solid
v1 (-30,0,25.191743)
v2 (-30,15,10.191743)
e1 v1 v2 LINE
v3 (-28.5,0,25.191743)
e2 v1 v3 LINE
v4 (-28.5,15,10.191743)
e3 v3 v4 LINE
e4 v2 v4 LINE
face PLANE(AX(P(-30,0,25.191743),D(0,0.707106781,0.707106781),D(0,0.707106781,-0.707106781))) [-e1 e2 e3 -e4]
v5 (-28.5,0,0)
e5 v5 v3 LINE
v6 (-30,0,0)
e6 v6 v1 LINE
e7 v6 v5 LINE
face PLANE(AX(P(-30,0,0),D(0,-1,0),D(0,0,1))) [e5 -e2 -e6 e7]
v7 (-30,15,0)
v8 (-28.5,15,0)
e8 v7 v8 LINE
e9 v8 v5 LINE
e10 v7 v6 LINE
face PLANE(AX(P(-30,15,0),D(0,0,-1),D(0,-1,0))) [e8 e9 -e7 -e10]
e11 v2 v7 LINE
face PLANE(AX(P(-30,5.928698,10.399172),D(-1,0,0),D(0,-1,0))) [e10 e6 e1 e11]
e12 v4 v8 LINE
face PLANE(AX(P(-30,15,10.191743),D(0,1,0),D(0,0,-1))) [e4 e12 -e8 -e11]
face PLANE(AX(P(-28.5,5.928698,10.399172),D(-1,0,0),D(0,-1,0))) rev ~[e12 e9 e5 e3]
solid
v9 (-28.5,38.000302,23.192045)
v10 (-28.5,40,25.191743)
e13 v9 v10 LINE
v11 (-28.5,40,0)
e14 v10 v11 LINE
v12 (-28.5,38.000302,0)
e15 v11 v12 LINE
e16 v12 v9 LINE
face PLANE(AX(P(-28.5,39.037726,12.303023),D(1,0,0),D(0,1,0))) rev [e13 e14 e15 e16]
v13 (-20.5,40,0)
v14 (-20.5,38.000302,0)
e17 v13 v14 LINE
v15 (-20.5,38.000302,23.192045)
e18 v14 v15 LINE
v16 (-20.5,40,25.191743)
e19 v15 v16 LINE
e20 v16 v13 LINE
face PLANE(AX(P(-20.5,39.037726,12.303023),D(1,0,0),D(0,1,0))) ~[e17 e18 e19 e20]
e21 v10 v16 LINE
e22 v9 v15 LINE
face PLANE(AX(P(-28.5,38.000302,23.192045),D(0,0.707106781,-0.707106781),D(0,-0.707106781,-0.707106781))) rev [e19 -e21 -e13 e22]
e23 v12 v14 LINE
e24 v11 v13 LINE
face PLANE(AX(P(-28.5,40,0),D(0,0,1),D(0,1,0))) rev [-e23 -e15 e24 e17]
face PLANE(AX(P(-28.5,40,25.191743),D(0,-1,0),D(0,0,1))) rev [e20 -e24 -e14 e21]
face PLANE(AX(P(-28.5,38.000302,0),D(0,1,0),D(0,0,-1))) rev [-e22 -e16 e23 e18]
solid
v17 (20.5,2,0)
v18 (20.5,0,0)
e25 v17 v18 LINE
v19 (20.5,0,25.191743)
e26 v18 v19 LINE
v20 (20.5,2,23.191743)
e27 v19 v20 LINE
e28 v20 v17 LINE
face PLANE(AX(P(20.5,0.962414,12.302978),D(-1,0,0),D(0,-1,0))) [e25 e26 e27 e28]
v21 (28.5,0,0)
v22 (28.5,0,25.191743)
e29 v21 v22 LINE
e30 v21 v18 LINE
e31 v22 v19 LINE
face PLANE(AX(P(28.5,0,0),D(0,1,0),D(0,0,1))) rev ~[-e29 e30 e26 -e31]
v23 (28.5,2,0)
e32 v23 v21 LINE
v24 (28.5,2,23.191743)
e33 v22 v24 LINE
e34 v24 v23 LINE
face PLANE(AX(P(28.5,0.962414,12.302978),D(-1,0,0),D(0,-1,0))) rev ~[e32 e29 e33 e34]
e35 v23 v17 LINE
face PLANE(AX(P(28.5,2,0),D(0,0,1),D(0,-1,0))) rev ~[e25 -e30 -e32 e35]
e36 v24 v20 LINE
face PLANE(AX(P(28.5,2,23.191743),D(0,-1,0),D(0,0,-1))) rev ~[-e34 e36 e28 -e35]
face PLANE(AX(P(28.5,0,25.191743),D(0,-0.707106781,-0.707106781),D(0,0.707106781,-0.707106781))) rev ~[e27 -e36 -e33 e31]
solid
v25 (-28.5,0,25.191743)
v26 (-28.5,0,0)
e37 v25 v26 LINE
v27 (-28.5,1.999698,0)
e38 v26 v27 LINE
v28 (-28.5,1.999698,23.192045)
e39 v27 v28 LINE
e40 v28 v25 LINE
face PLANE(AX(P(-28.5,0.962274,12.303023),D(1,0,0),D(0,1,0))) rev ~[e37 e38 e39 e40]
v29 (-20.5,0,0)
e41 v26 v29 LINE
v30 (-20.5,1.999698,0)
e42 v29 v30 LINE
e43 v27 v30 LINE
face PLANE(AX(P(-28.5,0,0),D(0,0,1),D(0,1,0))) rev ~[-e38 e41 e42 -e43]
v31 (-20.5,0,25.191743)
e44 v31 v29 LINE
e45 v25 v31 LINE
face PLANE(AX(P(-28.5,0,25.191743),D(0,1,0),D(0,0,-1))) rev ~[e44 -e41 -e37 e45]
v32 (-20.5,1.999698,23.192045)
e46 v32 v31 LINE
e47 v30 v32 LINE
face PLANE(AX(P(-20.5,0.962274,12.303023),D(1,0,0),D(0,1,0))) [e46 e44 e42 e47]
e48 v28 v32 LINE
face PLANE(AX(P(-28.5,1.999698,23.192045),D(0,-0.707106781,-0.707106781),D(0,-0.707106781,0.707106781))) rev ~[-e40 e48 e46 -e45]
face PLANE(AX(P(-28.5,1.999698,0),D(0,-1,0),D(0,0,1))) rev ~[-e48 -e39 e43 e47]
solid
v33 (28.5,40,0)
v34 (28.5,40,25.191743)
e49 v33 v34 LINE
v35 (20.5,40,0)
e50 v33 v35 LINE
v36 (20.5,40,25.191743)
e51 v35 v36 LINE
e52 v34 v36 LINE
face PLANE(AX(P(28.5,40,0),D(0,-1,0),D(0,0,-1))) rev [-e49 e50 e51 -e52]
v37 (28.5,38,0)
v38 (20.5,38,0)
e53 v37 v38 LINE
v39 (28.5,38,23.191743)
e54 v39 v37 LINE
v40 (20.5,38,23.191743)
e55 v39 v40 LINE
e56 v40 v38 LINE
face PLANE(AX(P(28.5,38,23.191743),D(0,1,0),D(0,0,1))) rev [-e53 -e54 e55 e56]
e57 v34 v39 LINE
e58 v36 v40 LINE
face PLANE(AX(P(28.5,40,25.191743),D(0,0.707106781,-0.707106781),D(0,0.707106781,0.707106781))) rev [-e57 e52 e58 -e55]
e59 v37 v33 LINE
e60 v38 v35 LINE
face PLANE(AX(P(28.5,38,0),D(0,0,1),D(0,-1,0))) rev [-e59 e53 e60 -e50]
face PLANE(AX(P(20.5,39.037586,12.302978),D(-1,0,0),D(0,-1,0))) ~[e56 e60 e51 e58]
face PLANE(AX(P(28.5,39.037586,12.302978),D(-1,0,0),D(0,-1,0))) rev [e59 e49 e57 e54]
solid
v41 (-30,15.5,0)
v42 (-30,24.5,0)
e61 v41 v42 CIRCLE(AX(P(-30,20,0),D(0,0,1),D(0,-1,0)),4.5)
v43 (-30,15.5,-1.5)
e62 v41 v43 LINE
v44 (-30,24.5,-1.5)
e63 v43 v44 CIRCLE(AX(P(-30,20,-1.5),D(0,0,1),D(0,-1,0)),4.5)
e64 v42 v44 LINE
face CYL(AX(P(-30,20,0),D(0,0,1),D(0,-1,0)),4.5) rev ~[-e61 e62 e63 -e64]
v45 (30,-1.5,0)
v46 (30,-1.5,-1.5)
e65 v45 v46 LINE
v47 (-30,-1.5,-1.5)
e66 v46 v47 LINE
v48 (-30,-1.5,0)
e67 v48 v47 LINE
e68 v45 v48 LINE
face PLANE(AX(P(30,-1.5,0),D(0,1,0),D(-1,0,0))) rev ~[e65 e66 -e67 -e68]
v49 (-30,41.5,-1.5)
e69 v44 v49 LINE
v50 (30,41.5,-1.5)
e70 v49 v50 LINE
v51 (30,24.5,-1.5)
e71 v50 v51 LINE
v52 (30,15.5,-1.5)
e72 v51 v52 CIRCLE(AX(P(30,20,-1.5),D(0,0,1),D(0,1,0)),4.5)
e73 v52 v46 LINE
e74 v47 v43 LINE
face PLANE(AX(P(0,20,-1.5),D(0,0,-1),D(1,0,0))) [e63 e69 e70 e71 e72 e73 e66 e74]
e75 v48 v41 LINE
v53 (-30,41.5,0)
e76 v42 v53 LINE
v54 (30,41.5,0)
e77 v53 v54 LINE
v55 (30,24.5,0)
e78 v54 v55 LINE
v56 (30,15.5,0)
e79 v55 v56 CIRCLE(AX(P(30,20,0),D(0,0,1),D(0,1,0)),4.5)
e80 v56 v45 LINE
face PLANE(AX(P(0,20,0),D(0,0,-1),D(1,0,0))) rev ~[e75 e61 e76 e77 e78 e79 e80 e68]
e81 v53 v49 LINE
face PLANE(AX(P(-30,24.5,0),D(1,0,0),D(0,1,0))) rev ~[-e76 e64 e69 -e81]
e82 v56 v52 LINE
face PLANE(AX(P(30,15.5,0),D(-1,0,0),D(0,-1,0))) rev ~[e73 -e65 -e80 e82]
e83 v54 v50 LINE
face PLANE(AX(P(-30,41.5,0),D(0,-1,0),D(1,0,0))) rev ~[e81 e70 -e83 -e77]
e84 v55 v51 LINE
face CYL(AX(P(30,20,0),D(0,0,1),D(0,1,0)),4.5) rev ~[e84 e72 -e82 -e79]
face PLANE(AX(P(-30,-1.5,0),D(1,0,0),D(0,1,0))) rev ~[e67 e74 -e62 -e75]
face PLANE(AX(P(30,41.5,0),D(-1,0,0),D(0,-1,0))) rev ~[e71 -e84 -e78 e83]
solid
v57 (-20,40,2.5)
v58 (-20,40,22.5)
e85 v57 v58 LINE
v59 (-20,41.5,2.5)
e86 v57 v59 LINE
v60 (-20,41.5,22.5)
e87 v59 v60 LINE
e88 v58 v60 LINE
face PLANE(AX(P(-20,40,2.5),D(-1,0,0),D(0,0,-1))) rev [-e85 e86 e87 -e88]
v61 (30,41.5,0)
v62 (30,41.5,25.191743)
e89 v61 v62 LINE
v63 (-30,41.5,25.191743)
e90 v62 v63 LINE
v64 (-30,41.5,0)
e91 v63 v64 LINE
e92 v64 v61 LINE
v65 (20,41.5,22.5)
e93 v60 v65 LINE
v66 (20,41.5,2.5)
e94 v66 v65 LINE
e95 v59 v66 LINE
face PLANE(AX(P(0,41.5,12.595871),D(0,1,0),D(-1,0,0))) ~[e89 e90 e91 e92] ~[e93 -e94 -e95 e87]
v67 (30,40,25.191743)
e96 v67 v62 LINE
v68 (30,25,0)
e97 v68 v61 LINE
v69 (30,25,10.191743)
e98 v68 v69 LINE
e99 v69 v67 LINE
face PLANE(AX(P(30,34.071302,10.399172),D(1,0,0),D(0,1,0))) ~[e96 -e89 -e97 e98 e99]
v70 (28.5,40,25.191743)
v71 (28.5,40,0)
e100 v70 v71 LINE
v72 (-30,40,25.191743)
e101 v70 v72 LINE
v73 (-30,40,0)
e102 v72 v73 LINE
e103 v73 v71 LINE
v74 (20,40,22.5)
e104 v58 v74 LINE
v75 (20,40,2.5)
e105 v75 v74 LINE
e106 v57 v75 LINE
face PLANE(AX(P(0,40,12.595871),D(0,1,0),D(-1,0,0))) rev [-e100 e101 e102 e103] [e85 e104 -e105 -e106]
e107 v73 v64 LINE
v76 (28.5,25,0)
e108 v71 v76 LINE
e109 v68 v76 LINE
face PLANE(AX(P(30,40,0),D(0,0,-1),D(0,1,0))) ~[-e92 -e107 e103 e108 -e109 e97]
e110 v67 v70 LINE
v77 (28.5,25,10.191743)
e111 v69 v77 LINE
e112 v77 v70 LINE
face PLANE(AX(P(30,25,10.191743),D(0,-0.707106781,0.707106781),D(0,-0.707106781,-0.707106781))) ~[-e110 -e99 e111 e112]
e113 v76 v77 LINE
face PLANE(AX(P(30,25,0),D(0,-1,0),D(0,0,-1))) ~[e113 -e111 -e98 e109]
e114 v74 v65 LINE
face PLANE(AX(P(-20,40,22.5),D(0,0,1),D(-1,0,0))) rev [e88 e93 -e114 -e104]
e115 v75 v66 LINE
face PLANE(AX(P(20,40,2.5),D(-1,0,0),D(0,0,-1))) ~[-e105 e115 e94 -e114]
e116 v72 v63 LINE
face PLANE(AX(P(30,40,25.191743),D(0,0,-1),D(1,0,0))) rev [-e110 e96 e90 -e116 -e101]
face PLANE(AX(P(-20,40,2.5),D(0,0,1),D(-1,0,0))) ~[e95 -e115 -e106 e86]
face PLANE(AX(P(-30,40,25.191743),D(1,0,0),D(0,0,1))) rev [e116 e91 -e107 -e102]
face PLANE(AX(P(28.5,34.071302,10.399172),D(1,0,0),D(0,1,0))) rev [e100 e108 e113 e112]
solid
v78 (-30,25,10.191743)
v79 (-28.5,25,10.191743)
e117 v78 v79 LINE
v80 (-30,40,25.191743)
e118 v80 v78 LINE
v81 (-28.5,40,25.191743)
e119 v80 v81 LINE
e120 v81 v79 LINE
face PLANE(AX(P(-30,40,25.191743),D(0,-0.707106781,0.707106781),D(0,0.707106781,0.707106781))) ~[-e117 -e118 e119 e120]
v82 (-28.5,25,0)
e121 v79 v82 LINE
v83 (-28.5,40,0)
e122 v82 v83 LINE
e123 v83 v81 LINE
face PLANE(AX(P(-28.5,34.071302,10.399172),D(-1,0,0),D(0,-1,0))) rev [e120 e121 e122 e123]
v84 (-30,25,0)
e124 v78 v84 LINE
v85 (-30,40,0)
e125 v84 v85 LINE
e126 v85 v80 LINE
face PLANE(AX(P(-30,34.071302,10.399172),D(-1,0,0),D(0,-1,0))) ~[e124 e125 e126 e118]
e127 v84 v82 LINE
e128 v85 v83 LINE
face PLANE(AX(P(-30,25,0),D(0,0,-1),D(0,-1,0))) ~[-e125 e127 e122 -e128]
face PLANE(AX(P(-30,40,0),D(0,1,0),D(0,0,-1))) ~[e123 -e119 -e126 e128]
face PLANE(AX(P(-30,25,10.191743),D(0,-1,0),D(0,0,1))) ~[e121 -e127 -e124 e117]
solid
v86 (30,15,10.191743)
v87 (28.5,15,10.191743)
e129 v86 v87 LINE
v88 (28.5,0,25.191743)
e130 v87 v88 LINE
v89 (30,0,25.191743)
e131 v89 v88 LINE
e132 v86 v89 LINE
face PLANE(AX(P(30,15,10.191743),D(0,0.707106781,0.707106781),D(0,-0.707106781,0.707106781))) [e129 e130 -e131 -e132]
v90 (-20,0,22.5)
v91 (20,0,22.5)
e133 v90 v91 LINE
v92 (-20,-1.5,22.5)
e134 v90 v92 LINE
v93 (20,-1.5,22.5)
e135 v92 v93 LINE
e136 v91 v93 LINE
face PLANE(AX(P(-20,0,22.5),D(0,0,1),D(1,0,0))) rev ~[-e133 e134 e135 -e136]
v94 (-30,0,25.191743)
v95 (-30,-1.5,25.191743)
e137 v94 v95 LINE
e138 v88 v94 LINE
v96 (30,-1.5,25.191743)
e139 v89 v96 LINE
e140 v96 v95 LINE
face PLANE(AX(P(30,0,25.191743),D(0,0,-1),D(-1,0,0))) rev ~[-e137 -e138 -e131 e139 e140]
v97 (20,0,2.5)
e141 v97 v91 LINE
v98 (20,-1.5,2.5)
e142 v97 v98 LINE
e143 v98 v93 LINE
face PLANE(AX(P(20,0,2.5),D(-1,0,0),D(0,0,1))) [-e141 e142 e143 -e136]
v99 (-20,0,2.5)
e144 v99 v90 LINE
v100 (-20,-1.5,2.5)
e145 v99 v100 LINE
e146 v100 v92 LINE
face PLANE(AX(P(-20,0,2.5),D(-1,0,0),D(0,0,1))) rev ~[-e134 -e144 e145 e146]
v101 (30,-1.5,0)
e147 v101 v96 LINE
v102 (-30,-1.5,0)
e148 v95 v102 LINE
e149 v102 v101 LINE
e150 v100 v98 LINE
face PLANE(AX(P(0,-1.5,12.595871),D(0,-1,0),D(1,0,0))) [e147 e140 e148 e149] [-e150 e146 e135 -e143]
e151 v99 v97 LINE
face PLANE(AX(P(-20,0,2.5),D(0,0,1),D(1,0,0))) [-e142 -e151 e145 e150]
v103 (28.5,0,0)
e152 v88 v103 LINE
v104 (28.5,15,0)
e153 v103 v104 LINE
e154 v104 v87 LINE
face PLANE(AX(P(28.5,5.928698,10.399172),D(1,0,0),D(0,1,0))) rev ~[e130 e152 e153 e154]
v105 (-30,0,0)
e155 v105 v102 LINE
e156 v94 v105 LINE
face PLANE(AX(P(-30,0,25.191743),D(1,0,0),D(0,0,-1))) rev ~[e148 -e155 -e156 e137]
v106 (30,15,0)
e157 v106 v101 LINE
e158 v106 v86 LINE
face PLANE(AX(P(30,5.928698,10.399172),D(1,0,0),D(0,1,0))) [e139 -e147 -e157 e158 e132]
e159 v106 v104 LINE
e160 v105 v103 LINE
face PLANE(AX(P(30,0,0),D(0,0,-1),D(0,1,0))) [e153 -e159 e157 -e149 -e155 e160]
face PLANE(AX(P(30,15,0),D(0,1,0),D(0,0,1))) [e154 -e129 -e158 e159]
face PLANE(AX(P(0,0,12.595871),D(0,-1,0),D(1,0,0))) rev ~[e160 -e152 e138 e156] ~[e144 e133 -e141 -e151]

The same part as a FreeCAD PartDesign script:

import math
import FreeCAD as App
import Part
import Sketcher
from FreeCAD import Vector
Q = App.Units.Quantity

doc = App.newDocument("Part")
body = doc.addObject("PartDesign::Body", "Body")

sketch1 = body.newObject("Sketcher::SketchObject", "Sketch")
sketch1.AttachmentSupport = (doc.getObject("XZ_Plane"), [""])
sketch1.MapMode = "FlatFace"
sketch1.addGeometry([
    Part.LineSegment(Vector(-30, 0, 0), Vector(30, 0, 0)),
    Part.LineSegment(Vector(30, 0, 0), Vector(30, 25, 0)),
    Part.LineSegment(Vector(30, 25, 0), Vector(-30, 25, 0)),
    Part.LineSegment(Vector(-30, 25, 0), Vector(-30, 0, 0)),
    Part.LineSegment(Vector(20, 2, 0), Vector(-20, 2, 0)),
    Part.LineSegment(Vector(-20, 2, 0), Vector(-20, 22, 0)),
    Part.LineSegment(Vector(-20, 22, 0), Vector(20, 22, 0)),
    Part.LineSegment(Vector(20, 22, 0), Vector(20, 2, 0)),
], False)
sketch1.addConstraint([
    Sketcher.Constraint("Coincident", 0, 2, 1, 1),
    Sketcher.Constraint("Coincident", 1, 2, 2, 1),
    Sketcher.Constraint("Coincident", 2, 2, 3, 1),
    Sketcher.Constraint("Coincident", 3, 2, 0, 1),
    Sketcher.Constraint("Coincident", 4, 2, 5, 1),
    Sketcher.Constraint("Coincident", 5, 2, 6, 1),
    Sketcher.Constraint("Coincident", 6, 2, 7, 1),
    Sketcher.Constraint("Coincident", 7, 2, 4, 1),
    Sketcher.Constraint("Horizontal", 0),
    Sketcher.Constraint("Vertical", 1),
    Sketcher.Constraint("Horizontal", 2),
    Sketcher.Constraint("Vertical", 3),
    Sketcher.Constraint("Horizontal", 4),
    Sketcher.Constraint("Vertical", 5),
    Sketcher.Constraint("Horizontal", 6),
    Sketcher.Constraint("Vertical", 7),
    Sketcher.Constraint("Symmetric", 0, 2, 3, 2, -1, 1),
    Sketcher.Constraint("DistanceX", 0, 1, 0, 2, Q("60 mm")),
    Sketcher.Constraint("DistanceX", 4, 2, 4, 1, Q("40 mm")),
    Sketcher.Constraint("DistanceY", 5, 1, 5, 2, Q("20 mm")),
    Sketcher.Constraint("DistanceX", 4, 2, -1, 1, Q("20 mm")),
    Sketcher.Constraint("DistanceY", -1, 1, 4, 2, Q("2.5 mm")),
    Sketcher.Constraint("DistanceY", 1, 1, 1, 2, Q("25.191743 mm")),
])
pad1 = body.newObject("PartDesign::Pad", "Pad")
pad1.Profile = sketch1
pad1.Length = 1.5

sketch2 = body.newObject("Sketcher::SketchObject", "Sketch001")
sketch2.AttachmentSupport = (doc.getObject("YZ_Plane"), [""])
sketch2.MapMode = "FlatFace"
sketch2.AttachmentOffset = App.Placement(Vector(0, 0, 30), App.Rotation())
sketch2.addGeometry([
    Part.LineSegment(Vector(0, 25, 0), Vector(0, 0, 0)),
    Part.LineSegment(Vector(0, 0, 0), Vector(15, 0, 0)),
    Part.LineSegment(Vector(15, 0, 0), Vector(15, 10, 0)),
    Part.LineSegment(Vector(15, 10, 0), Vector(0, 25, 0)),
], False)
sketch2.addConstraint([
    Sketcher.Constraint("Coincident", 0, 2, 1, 1),
    Sketcher.Constraint("Coincident", 1, 2, 2, 1),
    Sketcher.Constraint("Coincident", 2, 2, 3, 1),
    Sketcher.Constraint("Coincident", 3, 2, 0, 1),
    Sketcher.Constraint("Vertical", 0),
    Sketcher.Constraint("Horizontal", 1),
    Sketcher.Constraint("Vertical", 2),
    Sketcher.Constraint("Coincident", 0, 2, -1, 1),
    Sketcher.Constraint("DistanceX", 1, 1, 1, 2, Q("15 mm")),
    Sketcher.Constraint("Angle", 3, Q("135 deg")),
    Sketcher.Constraint("DistanceY", 0, 2, 0, 1, Q("25.191743 mm")),
])
pad2 = body.newObject("PartDesign::Pad", "Pad001")
pad2.Profile = sketch2
pad2.Length = 1.5
pad2.Reversed = True
body2 = doc.addObject("PartDesign::Body", "Body001")

sketch3 = body2.newObject("Sketcher::SketchObject", "Sketch002")
sketch3.AttachmentSupport = (doc.getObject("YZ_Plane001"), [""])
sketch3.MapMode = "FlatFace"
sketch3.AttachmentOffset = App.Placement(Vector(0, 0, -30), App.Rotation())
sketch3.addGeometry([
    Part.LineSegment(Vector(15, 0, 0), Vector(0, 0, 0)),
    Part.LineSegment(Vector(0, 0, 0), Vector(0, 25, 0)),
    Part.LineSegment(Vector(0, 25, 0), Vector(15, 10, 0)),
    Part.LineSegment(Vector(15, 10, 0), Vector(15, 0, 0)),
], False)
sketch3.addConstraint([
    Sketcher.Constraint("Coincident", 0, 2, 1, 1),
    Sketcher.Constraint("Coincident", 1, 2, 2, 1),
    Sketcher.Constraint("Coincident", 2, 2, 3, 1),
    Sketcher.Constraint("Coincident", 3, 2, 0, 1),
    Sketcher.Constraint("Horizontal", 0),
    Sketcher.Constraint("Vertical", 1),
    Sketcher.Constraint("Vertical", 3),
    Sketcher.Constraint("Coincident", 0, 2, -1, 1),
    Sketcher.Constraint("DistanceX", 0, 2, 0, 1, Q("15 mm")),
    Sketcher.Constraint("Angle", 2, Q("-45 deg")),
    Sketcher.Constraint("DistanceY", 1, 1, 1, 2, Q("25.191743 mm")),
])
pad3 = body2.newObject("PartDesign::Pad", "Pad002")
pad3.Profile = sketch3
pad3.Length = 1.5
body3 = doc.addObject("PartDesign::Body", "Body002")

sketch4 = body3.newObject("Sketcher::SketchObject", "Sketch003")
sketch4.AttachmentSupport = (doc.getObject("YZ_Plane002"), [""])
sketch4.MapMode = "FlatFace"
sketch4.AttachmentOffset = App.Placement(Vector(0, 0, -28.5), App.Rotation())
sketch4.addGeometry([
    Part.LineSegment(Vector(0, 25.2, 0), Vector(0, 0, 0)),
    Part.LineSegment(Vector(0, 0, 0), Vector(2, 0, 0)),
    Part.LineSegment(Vector(2, 0, 0), Vector(2, 23.2, 0)),
    Part.LineSegment(Vector(2, 23.2, 0), Vector(0, 25.2, 0)),
], False)
sketch4.addConstraint([
    Sketcher.Constraint("Coincident", 0, 2, 1, 1),
    Sketcher.Constraint("Coincident", 1, 2, 2, 1),
    Sketcher.Constraint("Coincident", 2, 2, 3, 1),
    Sketcher.Constraint("Coincident", 3, 2, 0, 1),
    Sketcher.Constraint("Vertical", 0),
    Sketcher.Constraint("Horizontal", 1),
    Sketcher.Constraint("Vertical", 2),
    Sketcher.Constraint("Coincident", 0, 2, -1, 1),
    Sketcher.Constraint("Angle", 3, Q("135 deg")),
    Sketcher.Constraint("Distance", 3, Q("2.828 mm")),
    Sketcher.Constraint("DistanceY", 0, 2, 0, 1, Q("25.191743 mm")),
])
pad4 = body3.newObject("PartDesign::Pad", "Pad003")
pad4.Profile = sketch4
pad4.Length = 8
body4 = doc.addObject("PartDesign::Body", "Body003")

sketch5 = body4.newObject("Sketcher::SketchObject", "Sketch004")
sketch5.AttachmentSupport = (doc.getObject("YZ_Plane003"), [""])
sketch5.MapMode = "FlatFace"
sketch5.AttachmentOffset = App.Placement(Vector(0, 0, 28.5), App.Rotation())
sketch5.addGeometry([
    Part.LineSegment(Vector(2, 0, 0), Vector(0, 0, 0)),
    Part.LineSegment(Vector(0, 0, 0), Vector(0, 25.2, 0)),
    Part.LineSegment(Vector(0, 25.2, 0), Vector(2, 23.2, 0)),
    Part.LineSegment(Vector(2, 23.2, 0), Vector(2, 0, 0)),
], False)
sketch5.addConstraint([
    Sketcher.Constraint("Coincident", 0, 2, 1, 1),
    Sketcher.Constraint("Coincident", 1, 2, 2, 1),
    Sketcher.Constraint("Coincident", 2, 2, 3, 1),
    Sketcher.Constraint("Coincident", 3, 2, 0, 1),
    Sketcher.Constraint("Horizontal", 0),
    Sketcher.Constraint("Vertical", 1),
    Sketcher.Constraint("Vertical", 3),
    Sketcher.Constraint("Coincident", 0, 2, -1, 1),
    Sketcher.Constraint("DistanceX", 0, 2, 0, 1, Q("2 mm")),
    Sketcher.Constraint("Angle", 2, Q("-45 deg")),
    Sketcher.Constraint("DistanceY", 1, 1, 1, 2, Q("25.191743 mm")),
])
pad5 = body4.newObject("PartDesign::Pad", "Pad004")
pad5.Profile = sketch5
pad5.Length = 8
pad5.Reversed = True
body5 = doc.addObject("PartDesign::Body", "Body004")
doc.recompute()

mirroring = doc.addObject("Part::Mirroring", "Mirroring")
mirroring.Source = body
mirroring.Base = Vector(-29.25, 20, 5.095871)
mirroring.Normal = Vector(0, 1, 0)
body5.BaseFeature = mirroring
doc.recompute()
body6 = doc.addObject("PartDesign::Body", "Body005")
doc.recompute()

mirroring2 = doc.addObject("Part::Mirroring", "Mirroring001")
mirroring2.Source = body3
mirroring2.Base = Vector(-29.25, 20, 5.095871)
mirroring2.Normal = Vector(0, 1, 0)
body6.BaseFeature = mirroring2
doc.recompute()
body7 = doc.addObject("PartDesign::Body", "Body006")
doc.recompute()

mirroring3 = doc.addObject("Part::Mirroring", "Mirroring002")
mirroring3.Source = body2
mirroring3.Base = Vector(-29.25, 20, 5.095871)
mirroring3.Normal = Vector(0, 1, 0)
body7.BaseFeature = mirroring3
doc.recompute()
body8 = doc.addObject("PartDesign::Body", "Body007")
doc.recompute()

mirroring4 = doc.addObject("Part::Mirroring", "Mirroring003")
mirroring4.Source = body4
mirroring4.Base = Vector(-29.25, 20, 5.095871)
mirroring4.Normal = Vector(0, 1, 0)
body8.BaseFeature = mirroring4
doc.recompute()
body9 = doc.addObject("PartDesign::Body", "Body008")

sketch6 = body9.newObject("Sketcher::SketchObject", "Sketch005")
sketch6.AttachmentSupport = (doc.getObject("XY_Plane008"), [""])
sketch6.MapMode = "FlatFace"
sketch6.addGeometry([
    Part.LineSegment(Vector(30, -1.5, 0), Vector(-30, -1.5, 0)),
    Part.LineSegment(Vector(-30, -1.5, 0), Vector(-30, 15.5, 0)),
    Part.ArcOfCircle(Part.Circle(Vector(-30, 20, 0), Vector(0, 0, 1), 4.5), math.radians(-90), math.radians(90)),
    Part.LineSegment(Vector(-30, 24.5, 0), Vector(-30, 41.5, 0)),
    Part.LineSegment(Vector(-30, 41.5, 0), Vector(30, 41.5, 0)),
    Part.LineSegment(Vector(30, 41.5, 0), Vector(30, 24.5, 0)),
    Part.ArcOfCircle(Part.Circle(Vector(30, 20, 0), Vector(0, 0, 1), 4.5), math.radians(90), math.radians(270)),
    Part.LineSegment(Vector(30, 15.5, 0), Vector(30, -1.5, 0)),
], False)
sketch6.addConstraint([
    Sketcher.Constraint("Coincident", 0, 2, 1, 1),
    Sketcher.Constraint("Coincident", 1, 2, 2, 1),
    Sketcher.Constraint("Coincident", 2, 2, 3, 1),
    Sketcher.Constraint("Coincident", 3, 2, 4, 1),
    Sketcher.Constraint("Coincident", 4, 2, 5, 1),
    Sketcher.Constraint("Coincident", 5, 2, 6, 1),
    Sketcher.Constraint("Coincident", 6, 2, 7, 1),
    Sketcher.Constraint("Coincident", 7, 2, 0, 1),
    Sketcher.Constraint("Horizontal", 0),
    Sketcher.Constraint("Vertical", 1),
    Sketcher.Constraint("Vertical", 3),
    Sketcher.Constraint("Horizontal", 4),
    Sketcher.Constraint("Vertical", 5),
    Sketcher.Constraint("Vertical", 7),
    Sketcher.Constraint("Equal", 2, 6),
    Sketcher.Constraint("Symmetric", 2, 3, 6, 3, -2),
    Sketcher.Constraint("Vertical", 2, 3, 0, 2),
    Sketcher.Constraint("Vertical", 1, 2, 2, 2),
    Sketcher.Constraint("Vertical", 6, 3, 4, 2),
    Sketcher.Constraint("Vertical", 5, 2, 6, 2),
    Sketcher.Constraint("Equal", 1, 3),
    Sketcher.Constraint("Radius", 2, Q("4.5 mm")),
    Sketcher.Constraint("DistanceX", 0, 2, 0, 1, Q("60 mm")),
    Sketcher.Constraint("DistanceY", 1, 1, 1, 2, Q("17 mm")),
    Sketcher.Constraint("DistanceY", -1, 1, 2, 3, Q("20 mm")),
])
pad6 = body9.newObject("PartDesign::Pad", "Pad005")
pad6.Profile = sketch6
pad6.Length = 1.5
pad6.Reversed = True
mirroring.Visibility = False
mirroring2.Visibility = False
mirroring3.Visibility = False
mirroring4.Visibility = False

doc.recompute()
